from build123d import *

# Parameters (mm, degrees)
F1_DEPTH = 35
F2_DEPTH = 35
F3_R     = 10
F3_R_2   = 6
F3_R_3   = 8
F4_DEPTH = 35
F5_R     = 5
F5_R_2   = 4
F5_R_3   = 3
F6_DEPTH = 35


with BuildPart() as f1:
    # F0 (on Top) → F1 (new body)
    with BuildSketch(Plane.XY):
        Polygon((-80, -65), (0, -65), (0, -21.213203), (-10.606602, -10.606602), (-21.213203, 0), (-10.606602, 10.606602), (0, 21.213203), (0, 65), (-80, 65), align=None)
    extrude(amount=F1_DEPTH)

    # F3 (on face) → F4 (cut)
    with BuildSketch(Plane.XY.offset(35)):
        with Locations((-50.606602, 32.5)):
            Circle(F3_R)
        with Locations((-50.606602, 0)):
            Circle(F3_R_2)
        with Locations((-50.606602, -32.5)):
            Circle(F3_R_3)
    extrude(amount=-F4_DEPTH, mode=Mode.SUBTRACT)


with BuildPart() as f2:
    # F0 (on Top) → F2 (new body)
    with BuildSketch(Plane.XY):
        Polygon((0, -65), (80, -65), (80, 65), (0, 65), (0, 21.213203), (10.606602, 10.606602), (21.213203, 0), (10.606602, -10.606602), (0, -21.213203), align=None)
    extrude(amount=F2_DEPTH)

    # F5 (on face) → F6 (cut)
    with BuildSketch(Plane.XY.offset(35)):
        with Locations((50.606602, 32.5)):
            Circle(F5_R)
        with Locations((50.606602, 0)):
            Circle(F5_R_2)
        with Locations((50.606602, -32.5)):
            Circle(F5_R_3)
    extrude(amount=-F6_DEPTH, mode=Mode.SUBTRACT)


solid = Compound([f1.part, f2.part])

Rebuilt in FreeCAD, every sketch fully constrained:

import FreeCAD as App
import Part
import Sketcher
from FreeCAD import Vector
Q = App.Units.Quantity


def add_polygon(sketch, points):
    """Adds a closed chain of lines whose ends are joined by coincident constraints."""
    first, n = sketch.GeometryCount, len(points)
    for a, b in zip(points, points[1:] + points[:1]):
        sketch.addGeometry(Part.LineSegment(App.Vector(*a, 0), App.Vector(*b, 0)), False)
    for i in range(n):
        sketch.addConstraint(Sketcher.Constraint("Coincident", first + i, 2, first + (i + 1) % n, 1))

doc = App.newDocument("Part")
body = doc.addObject("PartDesign::Body", "Body")

# Sketch on XY plane
sketch1 = body.newObject("Sketcher::SketchObject", "Sketch")
sketch1.AttachmentSupport = (doc.getObject("XY_Plane"), [""])
sketch1.MapMode = "FlatFace"
add_polygon(sketch1, [(-80, -65), (0, -65), (0, -21), (-11, -11), (-21, 0), (-11, 11), (0, 21), (0, 65), (-80, 65)])  # lines 0-8
sketch1.addConstraint([
    Sketcher.Constraint("Horizontal", 0),
    Sketcher.Constraint("Vertical", 1),
    Sketcher.Constraint("Vertical", 6),
    Sketcher.Constraint("Horizontal", 7),
    Sketcher.Constraint("Vertical", 8),
    Sketcher.Constraint("Symmetric", 1, 2, 5, 2, -1, 1),
    Sketcher.Constraint("Symmetric", 2, 2, 4, 2, -1),
    Sketcher.Constraint("Symmetric", 0, 2, 6, 2, -1),
    Sketcher.Constraint("PointOnObject", 3, 2, -1),
    Sketcher.Constraint("Parallel", 2, 3),
    Sketcher.Constraint("Perpendicular", 3, 4),
    Sketcher.Constraint("Equal", 2, 3),
    Sketcher.Constraint("DistanceX", 0, 1, 0, 2, Q("80 mm")),
    Sketcher.Constraint("DistanceY", 8, 2, 8, 1, Q("130 mm")),
    Sketcher.Constraint("Distance", 2, Q("15 mm")),
])
pad1 = body.newObject("PartDesign::Pad", "Pad")
pad1.Profile = sketch1
pad1.Length = 35

# Sketch on XY plane
sketch2 = body.newObject("Sketcher::SketchObject", "Sketch001")
sketch2.AttachmentSupport = (doc.getObject("XY_Plane"), [""])
sketch2.MapMode = "FlatFace"
sketch2.AttachmentOffset = App.Placement(Vector(0, 0, 35), App.Rotation())
sketch2.addGeometry([
    Part.Circle(Vector(-51, 32, 0), Vector(0, 0, 1), 10),
    Part.Circle(Vector(-51, 0, 0), Vector(0, 0, 1), 6),
    Part.Circle(Vector(-51, -32, 0), Vector(0, 0, 1), 8),
], False)
sketch2.addConstraint([
    Sketcher.Constraint("Symmetric", 0, 3, 2, 3, -1),
    Sketcher.Constraint("PointOnObject", 1, 3, -1),
    Sketcher.Constraint("Vertical", 0, 3, 1, 3),
    Sketcher.Constraint("Diameter", 0, Q("20 mm")),
    Sketcher.Constraint("Diameter", 1, Q("12 mm")),
    Sketcher.Constraint("Diameter", 2, Q("16 mm")),
    Sketcher.Constraint("DistanceY", 2, 3, 0, 3, Q("65 mm")),
    Sketcher.Constraint("DistanceX", 0, 3, -1, 1, Q("50.606602 mm")),
])
pocket1 = body.newObject("PartDesign::Pocket", "Pocket")
pocket1.Profile = sketch2
pocket1.Length = 35
body2 = doc.addObject("PartDesign::Body", "Body001")

# Sketch on XY plane
sketch3 = body2.newObject("Sketcher::SketchObject", "Sketch002")
sketch3.AttachmentSupport = (doc.getObject("XY_Plane001"), [""])
sketch3.MapMode = "FlatFace"
add_polygon(sketch3, [(0, -65), (80, -65), (80, 65), (0, 65), (0, 21), (11, 11), (21, 0), (11, -11), (0, -21)])  # lines 0-8
sketch3.addConstraint([
    Sketcher.Constraint("Horizontal", 0),
    Sketcher.Constraint("Vertical", 1),
    Sketcher.Constraint("Horizontal", 2),
    Sketcher.Constraint("Vertical", 3),
    Sketcher.Constraint("Vertical", 8),
    Sketcher.Constraint("Symmetric", 3, 2, 7, 2, -1, 1),
    Sketcher.Constraint("Symmetric", 4, 2, 6, 2, -1),
    Sketcher.Constraint("Symmetric", 2, 2, 8, 2, -1),
    Sketcher.Constraint("PointOnObject", 5, 2, -1),
    Sketcher.Constraint("Parallel", 4, 5),
    Sketcher.Constraint("Perpendicular", 5, 6),
    Sketcher.Constraint("Equal", 4, 5),
    Sketcher.Constraint("DistanceX", 0, 1, 0, 2, Q("80 mm")),
    Sketcher.Constraint("DistanceY", 1, 1, 1, 2, Q("130 mm")),
    Sketcher.Constraint("Distance", 4, Q("15 mm")),
])
pad2 = body2.newObject("PartDesign::Pad", "Pad001")
pad2.Profile = sketch3
pad2.Length = 35

# Sketch on XY plane
sketch4 = body2.newObject("Sketcher::SketchObject", "Sketch003")
sketch4.AttachmentSupport = (doc.getObject("XY_Plane001"), [""])
sketch4.MapMode = "FlatFace"
sketch4.AttachmentOffset = App.Placement(Vector(0, 0, 35), App.Rotation())
sketch4.addGeometry([
    Part.Circle(Vector(50.6, 32.5, 0), Vector(0, 0, 1), 5),
    Part.Circle(Vector(50.6, 0, 0), Vector(0, 0, 1), 4),
    Part.Circle(Vector(50.6, -32.5, 0), Vector(0, 0, 1), 3),
], False)
sketch4.addConstraint([
    Sketcher.Constraint("Symmetric", 0, 3, 2, 3, -1),
    Sketcher.Constraint("PointOnObject", 1, 3, -1),
    Sketcher.Constraint("Vertical", 0, 3, 1, 3),
    Sketcher.Constraint("Diameter", 0, Q("10 mm")),
    Sketcher.Constraint("Diameter", 1, Q("8 mm")),
    Sketcher.Constraint("Diameter", 2, Q("6 mm")),
    Sketcher.Constraint("DistanceY", 2, 3, 0, 3, Q("65 mm")),
    Sketcher.Constraint("DistanceX", -1, 1, 0, 3, Q("50.606602 mm")),
])
pocket2 = body2.newObject("PartDesign::Pocket", "Pocket001")
pocket2.Profile = sketch4
pocket2.Length = 35

doc.recompute()
